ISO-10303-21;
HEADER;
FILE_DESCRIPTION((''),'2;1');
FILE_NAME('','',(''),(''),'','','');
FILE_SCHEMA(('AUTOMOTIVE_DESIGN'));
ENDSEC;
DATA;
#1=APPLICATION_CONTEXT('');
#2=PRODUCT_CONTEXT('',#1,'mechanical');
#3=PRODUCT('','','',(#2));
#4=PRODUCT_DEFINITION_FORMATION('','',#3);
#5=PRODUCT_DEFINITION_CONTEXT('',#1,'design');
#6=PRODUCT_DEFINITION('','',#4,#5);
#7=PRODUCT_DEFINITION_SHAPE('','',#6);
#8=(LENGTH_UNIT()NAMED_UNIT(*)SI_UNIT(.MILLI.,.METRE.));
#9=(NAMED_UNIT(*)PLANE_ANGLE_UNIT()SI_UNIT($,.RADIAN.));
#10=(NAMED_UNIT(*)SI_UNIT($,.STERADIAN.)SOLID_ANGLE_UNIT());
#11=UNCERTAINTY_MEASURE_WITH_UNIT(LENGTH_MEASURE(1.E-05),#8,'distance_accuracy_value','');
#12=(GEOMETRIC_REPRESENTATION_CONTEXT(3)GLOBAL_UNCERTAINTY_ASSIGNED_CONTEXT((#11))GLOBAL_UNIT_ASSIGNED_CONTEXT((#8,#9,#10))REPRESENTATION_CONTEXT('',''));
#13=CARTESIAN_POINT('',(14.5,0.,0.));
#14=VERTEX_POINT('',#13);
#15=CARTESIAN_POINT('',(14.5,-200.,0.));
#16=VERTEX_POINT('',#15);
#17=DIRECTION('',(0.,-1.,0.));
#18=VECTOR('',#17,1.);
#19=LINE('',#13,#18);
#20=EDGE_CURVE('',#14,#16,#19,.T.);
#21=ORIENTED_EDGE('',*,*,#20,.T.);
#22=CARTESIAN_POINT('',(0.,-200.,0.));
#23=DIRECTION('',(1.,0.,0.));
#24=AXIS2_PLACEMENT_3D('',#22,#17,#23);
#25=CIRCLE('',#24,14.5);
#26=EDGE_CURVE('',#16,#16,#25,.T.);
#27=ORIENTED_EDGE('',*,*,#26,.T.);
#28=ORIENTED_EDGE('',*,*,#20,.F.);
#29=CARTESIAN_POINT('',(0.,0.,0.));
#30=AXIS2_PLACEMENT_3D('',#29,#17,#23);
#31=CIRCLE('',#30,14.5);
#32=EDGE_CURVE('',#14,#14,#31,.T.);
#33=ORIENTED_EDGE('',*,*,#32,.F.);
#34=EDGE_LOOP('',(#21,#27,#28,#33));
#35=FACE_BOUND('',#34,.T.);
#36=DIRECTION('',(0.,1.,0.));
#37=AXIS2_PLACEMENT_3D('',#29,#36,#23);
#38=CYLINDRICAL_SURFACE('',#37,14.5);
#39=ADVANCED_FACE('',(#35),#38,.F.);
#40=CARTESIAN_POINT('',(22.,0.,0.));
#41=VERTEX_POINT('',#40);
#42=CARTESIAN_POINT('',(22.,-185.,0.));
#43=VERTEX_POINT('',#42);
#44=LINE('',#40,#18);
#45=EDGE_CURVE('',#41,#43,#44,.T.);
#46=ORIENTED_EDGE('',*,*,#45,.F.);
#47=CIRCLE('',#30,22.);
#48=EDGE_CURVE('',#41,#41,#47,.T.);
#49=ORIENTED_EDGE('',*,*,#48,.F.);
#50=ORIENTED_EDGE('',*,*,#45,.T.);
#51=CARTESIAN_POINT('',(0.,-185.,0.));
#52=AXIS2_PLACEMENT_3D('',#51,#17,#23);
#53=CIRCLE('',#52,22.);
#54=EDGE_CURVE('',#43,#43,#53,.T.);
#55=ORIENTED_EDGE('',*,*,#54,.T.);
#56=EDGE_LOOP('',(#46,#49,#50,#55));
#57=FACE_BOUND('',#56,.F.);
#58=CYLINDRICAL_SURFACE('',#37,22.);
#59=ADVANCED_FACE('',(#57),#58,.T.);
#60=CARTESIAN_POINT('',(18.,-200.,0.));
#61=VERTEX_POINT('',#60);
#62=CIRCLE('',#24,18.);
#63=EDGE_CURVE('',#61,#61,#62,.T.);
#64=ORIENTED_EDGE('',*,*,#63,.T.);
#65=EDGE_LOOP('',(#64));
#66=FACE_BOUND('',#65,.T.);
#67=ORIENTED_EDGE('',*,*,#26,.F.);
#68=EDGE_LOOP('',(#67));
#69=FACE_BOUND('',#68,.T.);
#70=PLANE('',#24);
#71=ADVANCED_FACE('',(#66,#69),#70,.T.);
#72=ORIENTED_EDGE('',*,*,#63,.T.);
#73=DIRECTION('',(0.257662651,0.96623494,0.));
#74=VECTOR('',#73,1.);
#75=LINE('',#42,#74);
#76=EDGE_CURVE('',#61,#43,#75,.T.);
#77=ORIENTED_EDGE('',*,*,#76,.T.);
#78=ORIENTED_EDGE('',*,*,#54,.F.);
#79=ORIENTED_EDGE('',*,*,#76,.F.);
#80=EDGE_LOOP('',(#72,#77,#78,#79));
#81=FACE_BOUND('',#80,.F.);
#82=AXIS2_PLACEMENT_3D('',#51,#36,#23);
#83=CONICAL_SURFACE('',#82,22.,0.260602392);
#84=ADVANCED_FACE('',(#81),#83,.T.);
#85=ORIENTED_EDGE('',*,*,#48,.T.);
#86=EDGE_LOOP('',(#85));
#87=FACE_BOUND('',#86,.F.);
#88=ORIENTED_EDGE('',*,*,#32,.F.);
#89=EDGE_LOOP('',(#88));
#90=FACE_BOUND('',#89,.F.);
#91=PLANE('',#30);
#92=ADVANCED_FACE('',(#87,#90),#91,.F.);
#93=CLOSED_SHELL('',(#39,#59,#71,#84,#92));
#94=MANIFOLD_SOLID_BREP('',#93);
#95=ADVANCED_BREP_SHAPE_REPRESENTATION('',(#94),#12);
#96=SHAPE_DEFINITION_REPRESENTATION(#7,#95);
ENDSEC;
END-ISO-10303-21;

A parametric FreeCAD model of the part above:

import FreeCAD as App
import Part
import Sketcher
from FreeCAD import Vector


def edges_at(feature, points):
    """Names of the edges that pass closest to the given points."""
    edges = feature.Shape.Edges
    near = lambda p: min(range(len(edges)), key=lambda i: edges[i].distToShape(Part.Vertex(*p))[0])
    return sorted({f"Edge{near(p) + 1}" for p in points})

doc = App.newDocument("Part")
body = doc.addObject("PartDesign::Body", "Body")

sketch1 = body.newObject("Sketcher::SketchObject", "Sketch")
sketch1.AttachmentSupport = (doc.getObject("XZ_Plane"), [""])
sketch1.MapMode = "FlatFace"
sketch1.addGeometry([
    Part.Circle(Vector(0, 0, 0), Vector(0, 0, 1), 22),
    Part.Circle(Vector(0, 0, 0), Vector(0, 0, 1), 14.5),
], False)
sketch1.addConstraint([
    Sketcher.Constraint("Coincident", 0, 3, -1, 1),
    Sketcher.Constraint("Coincident", 1, 3, -1, 1),
    Sketcher.Constraint("Diameter", 0, 44.0),
    Sketcher.Constraint("Diameter", 1, 29.0),
])
pad1 = body.newObject("PartDesign::Pad", "Pad")
pad1.Profile = sketch1
pad1.Length = 200
doc.recompute()

chamfer = body.newObject("PartDesign::Chamfer", "Chamfer")
chamfer.Base = (pad1, edges_at(pad1, [(-22, -200, 0)]))
chamfer.ChamferType = "Two distances"
chamfer.Size = 4
chamfer.Size2 = 15
chamfer.FlipDirection = True

doc.recompute()
